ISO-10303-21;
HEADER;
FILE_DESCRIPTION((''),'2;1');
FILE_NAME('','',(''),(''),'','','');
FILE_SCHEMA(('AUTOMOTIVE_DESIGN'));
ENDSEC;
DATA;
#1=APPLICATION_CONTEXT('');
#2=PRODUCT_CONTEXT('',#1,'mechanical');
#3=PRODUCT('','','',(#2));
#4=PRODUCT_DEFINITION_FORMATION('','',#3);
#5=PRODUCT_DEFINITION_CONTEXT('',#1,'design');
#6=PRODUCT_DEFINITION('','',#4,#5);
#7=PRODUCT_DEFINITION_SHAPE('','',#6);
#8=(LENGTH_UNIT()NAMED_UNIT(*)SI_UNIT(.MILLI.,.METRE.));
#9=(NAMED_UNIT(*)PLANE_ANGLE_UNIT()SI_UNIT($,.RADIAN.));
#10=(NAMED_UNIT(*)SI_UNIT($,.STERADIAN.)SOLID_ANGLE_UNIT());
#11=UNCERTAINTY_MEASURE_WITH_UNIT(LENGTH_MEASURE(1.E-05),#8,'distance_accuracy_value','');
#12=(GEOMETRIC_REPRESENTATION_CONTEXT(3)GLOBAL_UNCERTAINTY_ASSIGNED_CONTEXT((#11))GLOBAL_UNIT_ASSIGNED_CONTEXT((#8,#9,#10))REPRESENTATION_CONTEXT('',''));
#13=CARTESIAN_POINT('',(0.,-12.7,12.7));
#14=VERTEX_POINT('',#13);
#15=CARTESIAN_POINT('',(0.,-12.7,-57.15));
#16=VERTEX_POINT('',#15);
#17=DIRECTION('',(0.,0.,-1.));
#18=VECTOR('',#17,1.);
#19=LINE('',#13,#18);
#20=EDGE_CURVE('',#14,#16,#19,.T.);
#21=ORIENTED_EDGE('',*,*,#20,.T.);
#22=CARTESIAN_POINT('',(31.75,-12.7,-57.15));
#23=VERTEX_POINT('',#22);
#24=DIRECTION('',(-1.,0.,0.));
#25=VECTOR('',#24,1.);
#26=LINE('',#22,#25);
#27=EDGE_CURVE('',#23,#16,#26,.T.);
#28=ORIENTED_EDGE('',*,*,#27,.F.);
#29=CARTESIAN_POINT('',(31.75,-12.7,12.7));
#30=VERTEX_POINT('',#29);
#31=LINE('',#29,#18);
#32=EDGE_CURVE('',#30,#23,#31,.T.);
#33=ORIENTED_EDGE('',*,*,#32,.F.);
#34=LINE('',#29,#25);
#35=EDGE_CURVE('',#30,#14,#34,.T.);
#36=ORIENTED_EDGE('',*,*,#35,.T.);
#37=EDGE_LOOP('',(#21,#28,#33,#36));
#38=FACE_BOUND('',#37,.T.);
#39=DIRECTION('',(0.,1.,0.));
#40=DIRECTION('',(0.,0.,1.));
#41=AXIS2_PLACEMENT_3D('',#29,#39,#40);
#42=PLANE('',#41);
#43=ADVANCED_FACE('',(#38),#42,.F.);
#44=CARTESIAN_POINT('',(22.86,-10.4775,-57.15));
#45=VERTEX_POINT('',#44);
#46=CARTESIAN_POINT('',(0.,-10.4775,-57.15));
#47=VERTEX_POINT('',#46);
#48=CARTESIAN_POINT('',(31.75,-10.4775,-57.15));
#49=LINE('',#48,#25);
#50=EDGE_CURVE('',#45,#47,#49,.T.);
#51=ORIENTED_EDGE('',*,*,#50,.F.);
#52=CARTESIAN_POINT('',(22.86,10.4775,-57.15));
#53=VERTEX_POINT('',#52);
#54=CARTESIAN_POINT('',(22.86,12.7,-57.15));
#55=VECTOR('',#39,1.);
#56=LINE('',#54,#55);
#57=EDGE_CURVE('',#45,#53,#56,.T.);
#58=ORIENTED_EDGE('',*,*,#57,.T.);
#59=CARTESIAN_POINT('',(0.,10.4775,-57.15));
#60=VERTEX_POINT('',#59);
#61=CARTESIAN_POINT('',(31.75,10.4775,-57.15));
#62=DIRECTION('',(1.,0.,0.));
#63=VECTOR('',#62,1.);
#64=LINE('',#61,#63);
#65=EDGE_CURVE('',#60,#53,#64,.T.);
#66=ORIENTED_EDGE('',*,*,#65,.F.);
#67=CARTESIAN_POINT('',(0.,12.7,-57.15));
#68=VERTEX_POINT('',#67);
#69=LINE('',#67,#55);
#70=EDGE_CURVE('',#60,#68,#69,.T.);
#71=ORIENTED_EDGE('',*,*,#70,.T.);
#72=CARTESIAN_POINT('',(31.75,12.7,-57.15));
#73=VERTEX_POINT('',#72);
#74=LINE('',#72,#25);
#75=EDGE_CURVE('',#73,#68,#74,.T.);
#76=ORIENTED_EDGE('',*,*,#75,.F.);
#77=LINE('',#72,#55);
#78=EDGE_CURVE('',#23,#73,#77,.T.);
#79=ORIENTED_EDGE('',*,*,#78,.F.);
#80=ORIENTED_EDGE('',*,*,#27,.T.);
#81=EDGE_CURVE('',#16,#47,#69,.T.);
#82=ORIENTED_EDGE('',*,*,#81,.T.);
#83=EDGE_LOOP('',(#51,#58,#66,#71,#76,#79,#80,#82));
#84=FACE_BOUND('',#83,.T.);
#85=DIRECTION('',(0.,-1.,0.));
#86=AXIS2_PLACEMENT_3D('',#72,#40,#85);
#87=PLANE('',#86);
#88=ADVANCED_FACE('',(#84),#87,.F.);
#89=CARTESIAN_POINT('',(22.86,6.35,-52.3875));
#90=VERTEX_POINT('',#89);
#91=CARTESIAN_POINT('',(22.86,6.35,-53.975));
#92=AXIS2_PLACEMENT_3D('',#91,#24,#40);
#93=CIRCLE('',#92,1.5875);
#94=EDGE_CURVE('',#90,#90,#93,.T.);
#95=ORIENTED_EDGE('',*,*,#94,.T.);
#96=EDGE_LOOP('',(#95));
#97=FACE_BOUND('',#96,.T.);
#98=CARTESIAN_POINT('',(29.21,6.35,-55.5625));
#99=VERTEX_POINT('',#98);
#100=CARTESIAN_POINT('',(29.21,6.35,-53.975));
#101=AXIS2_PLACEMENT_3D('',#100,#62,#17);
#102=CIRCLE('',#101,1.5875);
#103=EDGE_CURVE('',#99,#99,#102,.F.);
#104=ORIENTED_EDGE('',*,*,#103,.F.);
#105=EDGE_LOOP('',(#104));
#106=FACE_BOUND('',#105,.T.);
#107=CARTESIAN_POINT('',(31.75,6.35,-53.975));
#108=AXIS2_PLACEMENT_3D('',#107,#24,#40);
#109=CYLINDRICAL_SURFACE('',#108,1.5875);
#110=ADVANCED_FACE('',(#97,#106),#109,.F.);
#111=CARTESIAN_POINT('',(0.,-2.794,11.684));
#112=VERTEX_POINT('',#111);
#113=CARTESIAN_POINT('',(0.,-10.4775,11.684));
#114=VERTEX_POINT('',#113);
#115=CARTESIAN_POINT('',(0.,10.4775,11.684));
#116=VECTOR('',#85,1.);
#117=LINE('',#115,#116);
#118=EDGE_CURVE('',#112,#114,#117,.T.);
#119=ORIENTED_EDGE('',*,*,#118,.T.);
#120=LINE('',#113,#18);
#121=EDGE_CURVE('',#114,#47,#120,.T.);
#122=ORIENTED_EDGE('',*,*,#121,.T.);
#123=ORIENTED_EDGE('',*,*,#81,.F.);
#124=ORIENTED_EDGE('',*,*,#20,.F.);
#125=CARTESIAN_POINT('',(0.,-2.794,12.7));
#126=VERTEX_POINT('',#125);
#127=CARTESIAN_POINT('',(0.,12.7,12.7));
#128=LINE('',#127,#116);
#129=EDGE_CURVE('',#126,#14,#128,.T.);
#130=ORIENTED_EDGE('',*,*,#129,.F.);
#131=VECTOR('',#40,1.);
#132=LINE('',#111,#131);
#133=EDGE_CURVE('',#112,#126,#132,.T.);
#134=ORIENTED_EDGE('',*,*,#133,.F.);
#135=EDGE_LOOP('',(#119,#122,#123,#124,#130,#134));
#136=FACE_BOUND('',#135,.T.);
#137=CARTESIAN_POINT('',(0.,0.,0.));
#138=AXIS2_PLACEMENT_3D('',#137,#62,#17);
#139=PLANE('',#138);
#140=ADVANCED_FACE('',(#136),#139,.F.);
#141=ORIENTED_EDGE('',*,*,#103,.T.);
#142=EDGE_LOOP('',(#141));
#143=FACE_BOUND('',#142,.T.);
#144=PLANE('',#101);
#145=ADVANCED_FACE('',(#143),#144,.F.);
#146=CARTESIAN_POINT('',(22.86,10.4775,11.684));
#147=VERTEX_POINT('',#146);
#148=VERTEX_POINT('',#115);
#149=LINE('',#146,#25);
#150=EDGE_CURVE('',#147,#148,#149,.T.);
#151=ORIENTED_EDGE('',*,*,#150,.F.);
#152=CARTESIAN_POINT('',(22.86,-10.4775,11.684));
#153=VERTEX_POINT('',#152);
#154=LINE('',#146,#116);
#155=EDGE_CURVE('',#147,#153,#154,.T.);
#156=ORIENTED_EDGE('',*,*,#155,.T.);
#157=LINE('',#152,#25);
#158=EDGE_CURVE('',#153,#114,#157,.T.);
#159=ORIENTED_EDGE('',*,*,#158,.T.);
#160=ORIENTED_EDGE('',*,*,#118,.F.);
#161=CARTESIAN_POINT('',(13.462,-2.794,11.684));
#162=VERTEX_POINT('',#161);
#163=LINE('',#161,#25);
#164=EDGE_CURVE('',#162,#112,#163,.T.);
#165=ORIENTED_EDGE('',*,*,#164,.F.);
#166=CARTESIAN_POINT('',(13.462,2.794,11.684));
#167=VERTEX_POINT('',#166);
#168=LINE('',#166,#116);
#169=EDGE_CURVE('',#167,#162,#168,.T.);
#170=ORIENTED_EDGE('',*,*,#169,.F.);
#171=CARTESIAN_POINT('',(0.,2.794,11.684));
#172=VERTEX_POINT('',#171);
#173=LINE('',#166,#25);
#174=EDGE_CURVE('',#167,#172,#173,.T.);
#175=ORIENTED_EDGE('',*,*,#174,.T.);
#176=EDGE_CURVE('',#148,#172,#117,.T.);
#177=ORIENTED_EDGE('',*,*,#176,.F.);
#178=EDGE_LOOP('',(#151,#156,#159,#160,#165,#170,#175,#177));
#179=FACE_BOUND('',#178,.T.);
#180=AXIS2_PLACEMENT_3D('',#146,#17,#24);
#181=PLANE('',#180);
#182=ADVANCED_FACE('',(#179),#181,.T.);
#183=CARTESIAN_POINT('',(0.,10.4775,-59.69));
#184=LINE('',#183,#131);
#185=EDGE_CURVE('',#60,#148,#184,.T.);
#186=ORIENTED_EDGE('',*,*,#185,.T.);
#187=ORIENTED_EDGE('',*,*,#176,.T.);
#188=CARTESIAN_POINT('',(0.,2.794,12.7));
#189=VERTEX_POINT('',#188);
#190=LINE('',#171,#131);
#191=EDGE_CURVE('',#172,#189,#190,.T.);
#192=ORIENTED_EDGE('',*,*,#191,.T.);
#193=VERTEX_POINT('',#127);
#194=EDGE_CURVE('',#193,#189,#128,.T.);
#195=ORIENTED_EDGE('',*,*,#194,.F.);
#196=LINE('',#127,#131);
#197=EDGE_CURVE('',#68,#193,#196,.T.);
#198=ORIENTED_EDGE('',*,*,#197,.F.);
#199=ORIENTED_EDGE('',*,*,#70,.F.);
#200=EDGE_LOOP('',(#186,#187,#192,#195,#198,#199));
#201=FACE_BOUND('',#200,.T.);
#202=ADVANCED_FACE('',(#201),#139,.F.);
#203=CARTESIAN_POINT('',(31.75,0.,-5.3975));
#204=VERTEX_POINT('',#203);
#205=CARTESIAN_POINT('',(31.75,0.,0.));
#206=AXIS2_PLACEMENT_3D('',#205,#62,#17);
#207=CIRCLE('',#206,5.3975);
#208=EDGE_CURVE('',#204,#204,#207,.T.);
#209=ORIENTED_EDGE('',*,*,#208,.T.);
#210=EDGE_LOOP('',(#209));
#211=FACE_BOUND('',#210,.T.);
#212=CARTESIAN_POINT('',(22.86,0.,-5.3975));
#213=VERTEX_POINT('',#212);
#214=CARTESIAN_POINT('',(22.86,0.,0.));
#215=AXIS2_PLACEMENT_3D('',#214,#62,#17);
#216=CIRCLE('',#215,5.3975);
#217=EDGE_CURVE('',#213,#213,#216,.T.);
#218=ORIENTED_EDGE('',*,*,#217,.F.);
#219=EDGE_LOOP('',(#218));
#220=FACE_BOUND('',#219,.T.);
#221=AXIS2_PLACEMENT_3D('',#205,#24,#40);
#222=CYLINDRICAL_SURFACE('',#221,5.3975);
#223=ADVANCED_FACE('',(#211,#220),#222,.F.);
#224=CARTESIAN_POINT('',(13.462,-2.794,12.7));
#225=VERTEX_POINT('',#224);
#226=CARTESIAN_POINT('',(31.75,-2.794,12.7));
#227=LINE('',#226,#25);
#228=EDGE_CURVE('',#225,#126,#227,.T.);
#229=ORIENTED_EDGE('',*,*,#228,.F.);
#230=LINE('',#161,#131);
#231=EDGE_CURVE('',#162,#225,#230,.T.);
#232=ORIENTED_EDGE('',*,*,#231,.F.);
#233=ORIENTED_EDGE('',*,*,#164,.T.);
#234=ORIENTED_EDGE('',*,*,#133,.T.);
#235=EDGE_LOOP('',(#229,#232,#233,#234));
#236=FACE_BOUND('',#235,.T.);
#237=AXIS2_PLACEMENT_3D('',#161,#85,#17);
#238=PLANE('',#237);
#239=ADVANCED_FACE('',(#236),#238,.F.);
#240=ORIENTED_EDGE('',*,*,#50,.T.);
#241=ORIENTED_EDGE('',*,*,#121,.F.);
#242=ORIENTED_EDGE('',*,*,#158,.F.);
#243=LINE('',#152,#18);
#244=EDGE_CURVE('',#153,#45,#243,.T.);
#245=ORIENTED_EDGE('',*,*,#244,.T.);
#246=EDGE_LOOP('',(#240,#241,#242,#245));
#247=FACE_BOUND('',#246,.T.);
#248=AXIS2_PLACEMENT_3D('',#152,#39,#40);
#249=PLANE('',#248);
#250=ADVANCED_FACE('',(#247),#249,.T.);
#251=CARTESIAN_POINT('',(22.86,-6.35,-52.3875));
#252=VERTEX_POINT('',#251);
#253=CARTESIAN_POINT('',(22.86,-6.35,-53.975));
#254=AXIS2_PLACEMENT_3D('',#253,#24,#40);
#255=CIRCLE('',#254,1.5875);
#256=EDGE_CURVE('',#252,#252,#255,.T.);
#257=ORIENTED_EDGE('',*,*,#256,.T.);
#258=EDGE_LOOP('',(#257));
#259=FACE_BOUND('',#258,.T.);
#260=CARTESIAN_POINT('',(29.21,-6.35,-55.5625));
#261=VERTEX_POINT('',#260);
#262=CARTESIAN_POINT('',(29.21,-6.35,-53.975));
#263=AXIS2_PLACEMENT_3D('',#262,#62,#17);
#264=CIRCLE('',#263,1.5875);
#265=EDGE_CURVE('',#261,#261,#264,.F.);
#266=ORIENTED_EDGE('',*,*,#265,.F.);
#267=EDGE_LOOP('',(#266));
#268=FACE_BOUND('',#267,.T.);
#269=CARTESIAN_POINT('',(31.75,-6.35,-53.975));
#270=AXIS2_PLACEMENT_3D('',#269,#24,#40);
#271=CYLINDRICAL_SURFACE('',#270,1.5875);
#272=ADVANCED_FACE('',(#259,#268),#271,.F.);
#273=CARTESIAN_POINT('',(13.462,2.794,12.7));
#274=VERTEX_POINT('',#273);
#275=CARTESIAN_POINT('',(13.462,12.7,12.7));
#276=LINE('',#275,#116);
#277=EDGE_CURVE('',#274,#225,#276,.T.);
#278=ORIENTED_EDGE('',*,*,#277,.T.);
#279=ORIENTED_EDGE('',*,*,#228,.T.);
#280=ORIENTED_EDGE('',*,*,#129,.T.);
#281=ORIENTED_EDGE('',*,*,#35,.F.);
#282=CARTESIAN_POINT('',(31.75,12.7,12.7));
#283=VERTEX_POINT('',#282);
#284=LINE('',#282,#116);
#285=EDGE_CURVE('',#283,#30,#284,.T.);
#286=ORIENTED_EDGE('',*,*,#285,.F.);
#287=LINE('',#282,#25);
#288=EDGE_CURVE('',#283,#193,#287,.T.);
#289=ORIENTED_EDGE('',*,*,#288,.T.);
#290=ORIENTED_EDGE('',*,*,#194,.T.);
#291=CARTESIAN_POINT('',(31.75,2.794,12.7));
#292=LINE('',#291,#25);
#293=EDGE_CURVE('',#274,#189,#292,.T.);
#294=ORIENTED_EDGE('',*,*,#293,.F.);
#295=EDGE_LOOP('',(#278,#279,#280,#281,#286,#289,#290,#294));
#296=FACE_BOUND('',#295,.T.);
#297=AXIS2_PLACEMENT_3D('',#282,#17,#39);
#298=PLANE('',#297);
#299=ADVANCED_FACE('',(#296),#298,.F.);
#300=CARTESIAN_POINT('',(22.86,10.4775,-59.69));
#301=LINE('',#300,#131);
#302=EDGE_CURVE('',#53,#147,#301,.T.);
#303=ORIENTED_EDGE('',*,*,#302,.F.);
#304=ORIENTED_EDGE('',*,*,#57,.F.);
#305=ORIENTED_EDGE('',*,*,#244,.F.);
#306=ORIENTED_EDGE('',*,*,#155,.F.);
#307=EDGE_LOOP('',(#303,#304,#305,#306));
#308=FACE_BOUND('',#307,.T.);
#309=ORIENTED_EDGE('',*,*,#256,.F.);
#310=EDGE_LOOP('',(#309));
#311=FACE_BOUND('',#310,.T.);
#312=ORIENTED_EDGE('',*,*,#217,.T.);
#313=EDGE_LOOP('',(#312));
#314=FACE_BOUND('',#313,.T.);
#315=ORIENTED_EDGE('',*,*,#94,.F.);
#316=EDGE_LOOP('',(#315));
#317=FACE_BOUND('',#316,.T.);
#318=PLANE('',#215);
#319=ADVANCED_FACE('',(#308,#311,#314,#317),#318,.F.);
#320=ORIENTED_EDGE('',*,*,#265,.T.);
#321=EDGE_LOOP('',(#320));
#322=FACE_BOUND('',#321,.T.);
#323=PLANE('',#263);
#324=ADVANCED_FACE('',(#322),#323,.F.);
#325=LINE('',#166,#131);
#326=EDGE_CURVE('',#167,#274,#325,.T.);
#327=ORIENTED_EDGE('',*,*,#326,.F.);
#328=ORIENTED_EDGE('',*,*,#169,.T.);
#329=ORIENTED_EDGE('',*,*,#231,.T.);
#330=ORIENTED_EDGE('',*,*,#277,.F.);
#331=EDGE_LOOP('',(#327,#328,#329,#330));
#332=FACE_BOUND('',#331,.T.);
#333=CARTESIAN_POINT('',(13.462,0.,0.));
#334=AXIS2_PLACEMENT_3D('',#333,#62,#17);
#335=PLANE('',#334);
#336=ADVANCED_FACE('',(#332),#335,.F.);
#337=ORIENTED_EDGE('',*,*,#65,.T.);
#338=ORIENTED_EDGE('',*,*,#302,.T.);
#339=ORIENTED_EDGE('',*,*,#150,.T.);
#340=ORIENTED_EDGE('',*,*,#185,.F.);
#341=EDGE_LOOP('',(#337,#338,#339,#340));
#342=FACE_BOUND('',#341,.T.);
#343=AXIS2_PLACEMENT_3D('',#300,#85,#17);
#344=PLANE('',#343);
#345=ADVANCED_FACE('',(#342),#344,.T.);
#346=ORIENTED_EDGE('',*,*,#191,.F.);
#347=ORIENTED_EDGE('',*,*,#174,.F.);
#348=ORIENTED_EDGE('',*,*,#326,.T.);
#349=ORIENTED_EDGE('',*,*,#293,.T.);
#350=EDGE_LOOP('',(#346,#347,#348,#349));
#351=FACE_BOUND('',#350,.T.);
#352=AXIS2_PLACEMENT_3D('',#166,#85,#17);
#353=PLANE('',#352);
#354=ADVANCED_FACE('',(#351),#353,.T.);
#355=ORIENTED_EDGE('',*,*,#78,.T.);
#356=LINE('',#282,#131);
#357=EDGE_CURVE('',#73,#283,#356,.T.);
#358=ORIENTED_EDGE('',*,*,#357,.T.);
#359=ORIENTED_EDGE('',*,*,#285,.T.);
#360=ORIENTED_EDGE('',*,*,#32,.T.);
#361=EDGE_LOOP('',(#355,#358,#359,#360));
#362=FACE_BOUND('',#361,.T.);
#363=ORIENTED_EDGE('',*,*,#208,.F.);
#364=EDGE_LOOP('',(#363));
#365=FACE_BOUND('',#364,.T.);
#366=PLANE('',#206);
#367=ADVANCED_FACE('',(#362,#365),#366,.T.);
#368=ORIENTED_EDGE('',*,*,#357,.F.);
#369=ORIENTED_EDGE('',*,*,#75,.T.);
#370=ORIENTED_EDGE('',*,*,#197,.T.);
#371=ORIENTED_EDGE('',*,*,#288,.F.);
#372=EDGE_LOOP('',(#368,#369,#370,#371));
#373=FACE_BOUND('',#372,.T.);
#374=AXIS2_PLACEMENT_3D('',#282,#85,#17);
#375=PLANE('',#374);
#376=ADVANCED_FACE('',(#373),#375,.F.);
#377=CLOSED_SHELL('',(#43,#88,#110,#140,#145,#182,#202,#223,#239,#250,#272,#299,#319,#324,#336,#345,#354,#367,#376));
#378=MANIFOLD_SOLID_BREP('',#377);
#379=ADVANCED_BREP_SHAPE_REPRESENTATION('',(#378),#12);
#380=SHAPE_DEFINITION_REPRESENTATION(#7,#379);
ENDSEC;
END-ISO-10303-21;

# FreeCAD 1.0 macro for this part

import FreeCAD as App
import Part
import Sketcher
Q = App.Units.Quantity


def add_polygon(sketch, points):
    """Adds a closed chain of lines whose ends are joined by coincident constraints."""
    first, n = sketch.GeometryCount, len(points)
    for a, b in zip(points, points[1:] + points[:1]):
        sketch.addGeometry(Part.LineSegment(App.Vector(*a, 0), App.Vector(*b, 0)), False)
    for i in range(n):
        sketch.addConstraint(Sketcher.Constraint("Coincident", first + i, 2, first + (i + 1) % n, 1))

doc = App.newDocument("Part")
body = doc.addObject("PartDesign::Body", "Body")

# Sketch on YZ plane
sketch1 = doc.addObject("Sketcher::SketchObject", "Sketch")
body.addObject(sketch1)
sketch1.AttachmentSupport = (doc.YZ_Plane, [""])
sketch1.MapMode = "FlatFace"
add_polygon(sketch1, [(12.7, 12.7), (-12.7, 12.7), (-12.7, -57.15), (12.7, -57.15)])  # lines 0-3
sketch1.addGeometry(Part.Circle(App.Vector(0, 0, 0), App.Vector(0, 0, 1), 5.3975), False)  # 4
sketch1.addConstraint([
    Sketcher.Constraint("Horizontal", 0),
    Sketcher.Constraint("Vertical", 1),
    Sketcher.Constraint("Horizontal", 2),
    Sketcher.Constraint("Vertical", 3),
    Sketcher.Constraint("Coincident", 4, 3, -1, 1),
    Sketcher.Constraint("DistanceX", 0, 2, 0, 1, Q("1 in")),
    Sketcher.Constraint("Diameter", 4, Q("0.425 in")),
    Sketcher.Constraint("DistanceY", 1, 2, 1, 1, Q("2.75 in")),
    Sketcher.Constraint("DistanceX", 0, 2, -1, 1, Q("0.5 in")),
    Sketcher.Constraint("DistanceY", -1, 1, 0, 2, Q("0.5 in")),
])
pad1 = doc.addObject("PartDesign::Pad", "Pad")
body.addObject(pad1)
pad1.Profile = sketch1
pad1.Length = Q("1.25 in")

# Sketch on YZ plane
sketch2 = doc.addObject("Sketcher::SketchObject", "Sketch001")
body.addObject(sketch2)
sketch2.AttachmentSupport = (doc.YZ_Plane, [""])
sketch2.MapMode = "FlatFace"
add_polygon(sketch2, [(10.4775, -59.69), (-10.4775, -59.69), (-10.4775, 11.684), (10.4775, 11.684)])  # lines 0-3
sketch2.addConstraint([
    Sketcher.Constraint("Horizontal", 0),
    Sketcher.Constraint("Vertical", 1),
    Sketcher.Constraint("Horizontal", 2),
    Sketcher.Constraint("Vertical", 3),
    Sketcher.Constraint("DistanceY", 1, 1, 1, 2, Q("2.81 in")),
    Sketcher.Constraint("DistanceX", 0, 2, 0, 1, Q("0.825 in")),
    Sketcher.Constraint("DistanceY", 0, 2, -1, 1, Q("2.35 in")),
    Sketcher.Constraint("DistanceX", 0, 2, -1, 1, Q("0.4125 in")),
])
pocket1 = doc.addObject("PartDesign::Pocket", "Pocket")
body.addObject(pocket1)
pocket1.Profile = sketch2
pocket1.Length = Q("0.9 in")
pocket1.Reversed = True

# Sketch on YZ plane
sketch3 = doc.addObject("Sketcher::SketchObject", "Sketch002")
body.addObject(sketch3)
sketch3.AttachmentSupport = (doc.YZ_Plane, [""])
sketch3.MapMode = "FlatFace"
add_polygon(sketch3, [(2.794, 11.684), (-2.794, 11.684), (-2.794, 16.764), (2.794, 16.764)])  # lines 0-3
sketch3.addConstraint([
    Sketcher.Constraint("Horizontal", 0),
    Sketcher.Constraint("Vertical", 1),
    Sketcher.Constraint("Horizontal", 2),
    Sketcher.Constraint("Vertical", 3),
    Sketcher.Constraint("DistanceY", 1, 1, 1, 2, Q("0.2 in")),
    Sketcher.Constraint("DistanceX", 0, 2, 0, 1, Q("0.22 in")),
    Sketcher.Constraint("DistanceX", 0, 2, -1, 1, Q("0.11 in")),
    Sketcher.Constraint("DistanceY", -1, 1, 0, 2, Q("0.46 in")),
])
pocket2 = doc.addObject("PartDesign::Pocket", "Pocket001")
body.addObject(pocket2)
pocket2.Profile = sketch3
pocket2.Length = Q("0.53 in")
pocket2.Reversed = True

# Sketch on YZ plane
sketch4 = doc.addObject("Sketcher::SketchObject", "Sketch003")
body.addObject(sketch4)
sketch4.AttachmentSupport = (doc.YZ_Plane, [""])
sketch4.MapMode = "FlatFace"
sketch4.AttachmentOffset = App.Placement(App.Vector(0, 0, 0.9 * 25.4), App.Rotation())
sketch4.addGeometry([
    Part.Circle(App.Vector(6.35, -53.975, 0), App.Vector(0, 0, 1), 1.5875),
    Part.Circle(App.Vector(-6.35, -53.975, 0), App.Vector(0, 0, 1), 1.5875),
], False)
sketch4.addConstraint([
    Sketcher.Constraint("Equal", 0, 1),
    Sketcher.Constraint("Symmetric", 0, 3, 1, 3, -2),
    Sketcher.Constraint("Diameter", 0, Q("0.125 in")),
    Sketcher.Constraint("DistanceX", 1, 3, 0, 3, Q("0.5 in")),
    Sketcher.Constraint("DistanceY", 0, 3, -1, 1, Q("2.125 in")),
])
pocket3 = doc.addObject("PartDesign::Pocket", "Pocket002")
body.addObject(pocket3)
pocket3.Profile = sketch4
pocket3.Type = "ThroughAll"
pocket3.Reversed = True

# Sketch on YZ plane
sketch5 = doc.addObject("Sketcher::SketchObject", "Sketch004")
body.addObject(sketch5)
sketch5.AttachmentSupport = (doc.YZ_Plane, [""])
sketch5.MapMode = "FlatFace"
sketch5.AttachmentOffset = App.Placement(App.Vector(0, 0, 1.25 * 25.4), App.Rotation())
sketch5.addGeometry([
    Part.Circle(App.Vector(-6.35, -53.975, 0), App.Vector(0, 0, 1), 1.5875),
    Part.Circle(App.Vector(6.35, -53.975, 0), App.Vector(0, 0, 1), 1.5875),
], False)
sketch5.addConstraint([
    Sketcher.Constraint("Equal", 0, 1),
    Sketcher.Constraint("Symmetric", 0, 3, 1, 3, -2),
    Sketcher.Constraint("Diameter", 0, Q("0.125 in")),
    Sketcher.Constraint("DistanceX", 0, 3, 1, 3, Q("0.5 in")),
    Sketcher.Constraint("DistanceY", 0, 3, -1, 1, Q("2.125 in")),
])
pad2 = doc.addObject("PartDesign::Pad", "Pad001")
body.addObject(pad2)
pad2.Profile = sketch5
pad2.Length = Q("0.1 in")
pad2.Reversed = True

doc.recompute()
